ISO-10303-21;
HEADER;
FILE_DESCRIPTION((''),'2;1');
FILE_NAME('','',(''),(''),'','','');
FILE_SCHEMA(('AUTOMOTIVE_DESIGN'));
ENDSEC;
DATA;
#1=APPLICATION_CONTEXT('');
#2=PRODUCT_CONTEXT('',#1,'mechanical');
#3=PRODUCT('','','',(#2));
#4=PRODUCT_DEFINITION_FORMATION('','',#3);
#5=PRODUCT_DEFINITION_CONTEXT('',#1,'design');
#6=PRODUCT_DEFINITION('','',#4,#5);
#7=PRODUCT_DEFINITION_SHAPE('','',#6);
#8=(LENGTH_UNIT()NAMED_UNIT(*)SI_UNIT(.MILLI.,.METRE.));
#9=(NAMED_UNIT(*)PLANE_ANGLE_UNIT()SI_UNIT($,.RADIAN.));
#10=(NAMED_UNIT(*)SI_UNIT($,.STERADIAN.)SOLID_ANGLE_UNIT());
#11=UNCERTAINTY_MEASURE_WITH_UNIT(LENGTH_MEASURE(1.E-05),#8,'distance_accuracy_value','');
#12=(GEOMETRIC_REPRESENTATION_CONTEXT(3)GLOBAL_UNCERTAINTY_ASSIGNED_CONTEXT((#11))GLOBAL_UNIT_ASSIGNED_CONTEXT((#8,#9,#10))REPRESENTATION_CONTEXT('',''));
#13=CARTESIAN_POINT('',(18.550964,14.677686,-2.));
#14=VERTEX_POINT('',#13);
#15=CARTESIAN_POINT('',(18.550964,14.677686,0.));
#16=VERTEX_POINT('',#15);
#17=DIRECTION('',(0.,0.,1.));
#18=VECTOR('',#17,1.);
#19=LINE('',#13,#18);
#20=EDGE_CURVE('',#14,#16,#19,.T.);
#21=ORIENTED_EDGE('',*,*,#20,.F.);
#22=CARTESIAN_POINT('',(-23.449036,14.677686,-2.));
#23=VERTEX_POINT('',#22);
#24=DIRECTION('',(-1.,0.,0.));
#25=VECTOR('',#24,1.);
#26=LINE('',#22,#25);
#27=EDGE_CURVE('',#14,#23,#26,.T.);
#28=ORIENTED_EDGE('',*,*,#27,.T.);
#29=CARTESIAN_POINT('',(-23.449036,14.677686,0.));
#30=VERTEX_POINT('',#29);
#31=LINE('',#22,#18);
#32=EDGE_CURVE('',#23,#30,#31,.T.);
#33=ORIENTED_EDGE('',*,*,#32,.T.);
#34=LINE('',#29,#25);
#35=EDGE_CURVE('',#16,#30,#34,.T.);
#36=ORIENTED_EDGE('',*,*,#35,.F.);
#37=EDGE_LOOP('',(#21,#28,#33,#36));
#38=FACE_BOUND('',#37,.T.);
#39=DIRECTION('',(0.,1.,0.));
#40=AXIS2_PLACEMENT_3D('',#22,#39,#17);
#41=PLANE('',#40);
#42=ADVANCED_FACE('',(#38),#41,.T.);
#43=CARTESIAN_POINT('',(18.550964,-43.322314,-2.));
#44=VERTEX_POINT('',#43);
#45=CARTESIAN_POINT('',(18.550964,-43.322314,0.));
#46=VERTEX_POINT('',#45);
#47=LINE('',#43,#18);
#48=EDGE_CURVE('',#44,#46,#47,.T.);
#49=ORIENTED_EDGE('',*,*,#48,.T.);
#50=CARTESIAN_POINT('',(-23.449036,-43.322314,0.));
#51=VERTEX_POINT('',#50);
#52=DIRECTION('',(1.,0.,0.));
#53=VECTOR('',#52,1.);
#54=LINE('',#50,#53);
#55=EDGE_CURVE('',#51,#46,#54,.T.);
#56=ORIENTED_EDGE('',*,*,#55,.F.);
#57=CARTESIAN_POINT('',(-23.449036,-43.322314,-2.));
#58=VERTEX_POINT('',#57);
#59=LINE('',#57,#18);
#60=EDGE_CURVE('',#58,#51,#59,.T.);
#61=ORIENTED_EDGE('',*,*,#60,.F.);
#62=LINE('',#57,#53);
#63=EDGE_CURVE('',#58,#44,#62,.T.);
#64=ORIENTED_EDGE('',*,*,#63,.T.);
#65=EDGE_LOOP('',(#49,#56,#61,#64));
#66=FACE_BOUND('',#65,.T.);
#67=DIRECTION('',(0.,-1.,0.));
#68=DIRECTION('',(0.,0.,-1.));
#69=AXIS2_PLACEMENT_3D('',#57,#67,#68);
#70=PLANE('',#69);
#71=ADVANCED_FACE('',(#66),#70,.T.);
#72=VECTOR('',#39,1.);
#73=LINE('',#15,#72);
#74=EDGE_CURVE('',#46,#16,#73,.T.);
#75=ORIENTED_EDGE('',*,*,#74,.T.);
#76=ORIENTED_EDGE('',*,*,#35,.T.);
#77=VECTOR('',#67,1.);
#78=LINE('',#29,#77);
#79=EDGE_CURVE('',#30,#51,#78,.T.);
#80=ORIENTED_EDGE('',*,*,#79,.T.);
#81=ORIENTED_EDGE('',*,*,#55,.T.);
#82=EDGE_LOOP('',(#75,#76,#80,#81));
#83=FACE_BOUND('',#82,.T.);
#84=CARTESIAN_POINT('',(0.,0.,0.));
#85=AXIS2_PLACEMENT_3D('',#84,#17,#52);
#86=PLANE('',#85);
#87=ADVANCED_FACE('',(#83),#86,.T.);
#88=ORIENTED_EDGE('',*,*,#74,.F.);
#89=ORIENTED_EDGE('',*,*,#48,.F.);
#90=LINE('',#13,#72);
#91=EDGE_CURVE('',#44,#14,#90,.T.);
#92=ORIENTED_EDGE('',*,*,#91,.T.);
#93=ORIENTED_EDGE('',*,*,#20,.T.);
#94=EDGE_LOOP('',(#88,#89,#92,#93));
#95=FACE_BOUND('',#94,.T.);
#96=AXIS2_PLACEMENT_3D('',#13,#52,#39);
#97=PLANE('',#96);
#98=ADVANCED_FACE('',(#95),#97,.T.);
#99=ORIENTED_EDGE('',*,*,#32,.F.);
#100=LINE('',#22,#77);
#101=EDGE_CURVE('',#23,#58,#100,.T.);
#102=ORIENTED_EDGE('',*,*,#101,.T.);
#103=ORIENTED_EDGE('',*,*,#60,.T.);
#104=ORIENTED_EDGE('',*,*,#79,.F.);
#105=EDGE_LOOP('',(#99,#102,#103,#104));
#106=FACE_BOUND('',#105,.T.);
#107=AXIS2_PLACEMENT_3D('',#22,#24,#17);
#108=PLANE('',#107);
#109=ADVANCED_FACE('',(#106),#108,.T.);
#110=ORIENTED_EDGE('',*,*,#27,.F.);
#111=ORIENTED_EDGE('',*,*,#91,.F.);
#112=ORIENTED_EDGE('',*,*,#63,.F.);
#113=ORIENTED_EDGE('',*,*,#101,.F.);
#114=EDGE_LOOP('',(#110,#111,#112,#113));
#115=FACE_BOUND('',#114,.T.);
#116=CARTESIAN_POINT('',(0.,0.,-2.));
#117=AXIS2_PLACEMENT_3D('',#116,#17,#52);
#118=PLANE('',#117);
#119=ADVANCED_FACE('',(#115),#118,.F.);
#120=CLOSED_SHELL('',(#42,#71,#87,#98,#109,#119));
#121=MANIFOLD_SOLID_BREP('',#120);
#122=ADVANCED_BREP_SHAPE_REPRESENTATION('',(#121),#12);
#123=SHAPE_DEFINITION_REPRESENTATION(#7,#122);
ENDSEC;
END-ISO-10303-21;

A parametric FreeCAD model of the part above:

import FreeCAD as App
import Part
import Sketcher
Q = App.Units.Quantity


def add_polygon(sketch, points):
    """Adds a closed chain of lines whose ends are joined by coincident constraints."""
    first, n = sketch.GeometryCount, len(points)
    for a, b in zip(points, points[1:] + points[:1]):
        sketch.addGeometry(Part.LineSegment(App.Vector(*a, 0), App.Vector(*b, 0)), False)
    for i in range(n):
        sketch.addConstraint(Sketcher.Constraint("Coincident", first + i, 2, first + (i + 1) % n, 1))

doc = App.newDocument("Part")
params = doc.addObject("Spreadsheet::Sheet", "Params")
for row, (alias, value) in enumerate([
    ("sketch1_width", "42 mm"),
    ("sketch1_height", "58 mm"),
    ("pad1_length", "2 mm"),
], start=1):
    params.set(f"A{row}", alias)
    params.set(f"B{row}", "=" + value)
    params.setAlias(f"B{row}", alias)

body = doc.addObject("PartDesign::Body", "Body")

# Sketch on XY plane
sketch1 = body.newObject("Sketcher::SketchObject", "Sketch")
sketch1.AttachmentSupport = (doc.getObject("XY_Plane"), [""])
sketch1.MapMode = "FlatFace"
add_polygon(sketch1, [(-23, 15), (-23, -43), (19, -43), (19, 15)])  # lines 0-3
sketch1.addConstraint([
    Sketcher.Constraint("Vertical", 0),
    Sketcher.Constraint("Horizontal", 1),
    Sketcher.Constraint("Vertical", 2),
    Sketcher.Constraint("Horizontal", 3),
    Sketcher.Constraint("DistanceX", 1, 1, 1, 2, Q("42 mm")),
    Sketcher.Constraint("DistanceY", 0, 2, 0, 1, Q("58 mm")),
    Sketcher.Constraint("DistanceX", 0, 2, -1, 1, Q("23.449036 mm")),
    Sketcher.Constraint("DistanceY", 0, 2, -1, 1, Q("43.322314 mm")),
])
sketch1.setExpression("Constraints[8]", "Params.sketch1_width")
sketch1.setExpression("Constraints[9]", "Params.sketch1_height")
pad1 = body.newObject("PartDesign::Pad", "Pad")
pad1.Profile = sketch1
pad1.setExpression("Length", "Params.pad1_length")
pad1.Reversed = True

doc.recompute()
